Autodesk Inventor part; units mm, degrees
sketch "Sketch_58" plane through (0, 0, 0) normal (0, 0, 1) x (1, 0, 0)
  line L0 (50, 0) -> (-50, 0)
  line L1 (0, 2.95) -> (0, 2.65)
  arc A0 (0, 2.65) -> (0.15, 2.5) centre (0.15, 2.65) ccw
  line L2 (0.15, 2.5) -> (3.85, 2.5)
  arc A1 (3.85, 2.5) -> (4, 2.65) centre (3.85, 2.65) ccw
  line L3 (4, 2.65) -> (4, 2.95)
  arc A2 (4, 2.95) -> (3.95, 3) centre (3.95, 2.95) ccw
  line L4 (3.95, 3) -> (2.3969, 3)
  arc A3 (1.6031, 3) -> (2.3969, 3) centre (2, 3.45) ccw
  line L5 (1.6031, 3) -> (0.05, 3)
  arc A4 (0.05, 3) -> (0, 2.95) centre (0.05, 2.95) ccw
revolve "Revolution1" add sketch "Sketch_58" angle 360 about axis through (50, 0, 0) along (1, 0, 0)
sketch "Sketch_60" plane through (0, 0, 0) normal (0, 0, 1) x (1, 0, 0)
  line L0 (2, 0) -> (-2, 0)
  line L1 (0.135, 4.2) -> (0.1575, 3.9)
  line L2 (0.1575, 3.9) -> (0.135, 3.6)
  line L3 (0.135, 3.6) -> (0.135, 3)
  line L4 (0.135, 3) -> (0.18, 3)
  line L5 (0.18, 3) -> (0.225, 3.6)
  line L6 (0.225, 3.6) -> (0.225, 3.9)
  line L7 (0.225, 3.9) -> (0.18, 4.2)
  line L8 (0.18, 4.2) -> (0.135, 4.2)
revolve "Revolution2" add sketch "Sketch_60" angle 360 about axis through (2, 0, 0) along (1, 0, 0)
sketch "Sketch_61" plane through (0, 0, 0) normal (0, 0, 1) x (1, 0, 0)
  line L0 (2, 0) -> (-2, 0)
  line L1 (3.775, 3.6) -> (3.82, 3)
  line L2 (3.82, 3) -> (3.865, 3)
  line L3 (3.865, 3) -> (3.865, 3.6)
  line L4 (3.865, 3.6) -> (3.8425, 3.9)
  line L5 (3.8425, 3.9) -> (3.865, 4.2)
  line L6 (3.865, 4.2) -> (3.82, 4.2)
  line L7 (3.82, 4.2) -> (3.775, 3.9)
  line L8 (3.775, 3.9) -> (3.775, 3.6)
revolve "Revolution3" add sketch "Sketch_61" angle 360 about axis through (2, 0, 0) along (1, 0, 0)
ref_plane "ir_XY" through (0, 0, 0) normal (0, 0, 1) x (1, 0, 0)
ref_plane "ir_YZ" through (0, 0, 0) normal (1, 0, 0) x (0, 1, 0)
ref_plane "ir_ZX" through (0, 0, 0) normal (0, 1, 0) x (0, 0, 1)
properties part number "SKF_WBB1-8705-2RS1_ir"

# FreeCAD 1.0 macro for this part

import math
import FreeCAD as App
import Part
import Sketcher
from FreeCAD import Vector
Q = App.Units.Quantity

doc = App.newDocument("Part")
body = doc.addObject("PartDesign::Body", "Body")

# Sketch on XY plane
sketch1 = body.newObject("Sketcher::SketchObject", "Sketch")
sketch1.AttachmentSupport = (doc.getObject("XY_Plane"), [""])
sketch1.MapMode = "FlatFace"
sketch1.addGeometry([
    Part.ArcOfCircle(Part.Circle(Vector(0.05, 2.95, 0), Vector(0, 0, 1), 0.05), math.radians(90), math.radians(180)),  # 0
    Part.LineSegment(Vector(0, 2.95, 0), Vector(0, 2.65, 0)),  # 1
    Part.ArcOfCircle(Part.Circle(Vector(0.15, 2.65, 0), Vector(0, 0, 1), 0.15), math.radians(180), math.radians(270)),  # 2
    Part.LineSegment(Vector(0.15, 2.5, 0), Vector(3.85, 2.5, 0)),  # 3
    Part.ArcOfCircle(Part.Circle(Vector(3.85, 2.65, 0), Vector(0, 0, 1), 0.15), math.radians(-90), math.radians(0)),  # 4
    Part.LineSegment(Vector(4, 2.65, 0), Vector(4, 2.95, 0)),  # 5
    Part.ArcOfCircle(Part.Circle(Vector(3.95, 2.95, 0), Vector(0, 0, 1), 0.05), math.radians(0), math.radians(90)),  # 6
    Part.LineSegment(Vector(3.95, 3, 0), Vector(2.397, 3, 0)),  # 7
    Part.ArcOfCircle(Part.Circle(Vector(2, 3.45, 0), Vector(0, 0, 1), 0.6), math.radians(-131), math.radians(-49)),  # 8
    Part.LineSegment(Vector(1.603, 3, 0), Vector(0.05, 3, 0)),  # 9
], False)
sketch1.addConstraint([
    Sketcher.Constraint("Tangent", 0, 2, 1, 1),
    Sketcher.Constraint("Tangent", 1, 2, 2, 1),
    Sketcher.Constraint("Tangent", 2, 2, 3, 1),
    Sketcher.Constraint("Tangent", 3, 2, 4, 1),
    Sketcher.Constraint("Tangent", 4, 2, 5, 1),
    Sketcher.Constraint("Tangent", 5, 2, 6, 1),
    Sketcher.Constraint("Tangent", 6, 2, 7, 1),
    Sketcher.Constraint("Coincident", 7, 2, 8, 2),
    Sketcher.Constraint("Coincident", 8, 1, 9, 1),
    Sketcher.Constraint("Tangent", 9, 2, 0, 1),
    Sketcher.Constraint("Vertical", 1),
    Sketcher.Constraint("Horizontal", 3),
    Sketcher.Constraint("Vertical", 5),
    Sketcher.Constraint("Horizontal", 7),
    Sketcher.Constraint("Horizontal", 9),
    Sketcher.Constraint("Equal", 2, 4),
    Sketcher.Constraint("Equal", 0, 6),
    Sketcher.Constraint("PointOnObject", 0, 2, -2),
    Sketcher.Constraint("Horizontal", 0, 3, 6, 3),
    Sketcher.Constraint("Equal", 7, 9),
    Sketcher.Constraint("Radius", 8, 0.6),
    Sketcher.Constraint("Radius", 0, 0.05),
    Sketcher.Constraint("Radius", 2, 0.15),
    Sketcher.Constraint("DistanceX", 3, 1, 3, 2, 3.7),
    Sketcher.Constraint("DistanceY", 1, 2, 1, 1, 0.3),
    Sketcher.Constraint("DistanceY", -1, 1, 6, 2, 3.0),
    Sketcher.Constraint("DistanceY", 0, 3, 8, 3, 0.5),
])
revolution = body.newObject("PartDesign::Revolution", "Revolution")
revolution.Profile = sketch1
revolution.ReferenceAxis = (sketch1, ["H_Axis"])
revolution.Angle = 360

# Sketch on XY plane
sketch2 = body.newObject("Sketcher::SketchObject", "Sketch001")
sketch2.AttachmentSupport = (doc.getObject("XY_Plane"), [""])
sketch2.MapMode = "FlatFace"
sketch2.addGeometry([
    Part.LineSegment(Vector(0.18, 4.2, 0), Vector(0.135, 4.2, 0)),  # 0
    Part.LineSegment(Vector(0.135, 4.2, 0), Vector(0.158, 3.9, 0)),  # 1
    Part.LineSegment(Vector(0.158, 3.9, 0), Vector(0.135, 3.6, 0)),  # 2
    Part.LineSegment(Vector(0.135, 3.6, 0), Vector(0.135, 3, 0)),  # 3
    Part.LineSegment(Vector(0.135, 3, 0), Vector(0.18, 3, 0)),  # 4
    Part.LineSegment(Vector(0.18, 3, 0), Vector(0.225, 3.6, 0)),  # 5
    Part.LineSegment(Vector(0.225, 3.6, 0), Vector(0.225, 3.9, 0)),  # 6
    Part.LineSegment(Vector(0.225, 3.9, 0), Vector(0.18, 4.2, 0)),  # 7
], False)
sketch2.addConstraint([
    Sketcher.Constraint("Coincident", 0, 2, 1, 1),
    Sketcher.Constraint("Coincident", 1, 2, 2, 1),
    Sketcher.Constraint("Coincident", 2, 2, 3, 1),
    Sketcher.Constraint("Coincident", 3, 2, 4, 1),
    Sketcher.Constraint("Coincident", 4, 2, 5, 1),
    Sketcher.Constraint("Coincident", 5, 2, 6, 1),
    Sketcher.Constraint("Coincident", 6, 2, 7, 1),
    Sketcher.Constraint("Coincident", 7, 2, 0, 1),
    Sketcher.Constraint("Horizontal", 0),
    Sketcher.Constraint("Vertical", 3),
    Sketcher.Constraint("Horizontal", 4),
    Sketcher.Constraint("Vertical", 6),
    Sketcher.Constraint("Parallel", 2, 5),
    Sketcher.Constraint("Horizontal", 2, 2, 5, 2),
    Sketcher.Constraint("Horizontal", 1, 2, 6, 2),
    Sketcher.Constraint("Vertical", 0, 2, 2, 2),
    Sketcher.Constraint("Vertical", 4, 2, 7, 2),
    Sketcher.Constraint("Equal", 1, 2),
    Sketcher.Constraint("DistanceY", 3, 2, 3, 1, 0.6),
    Sketcher.Constraint("DistanceY", 6, 1, 6, 2, 0.3),
    Sketcher.Constraint("DistanceY", -1, 1, 3, 2, 3.0),
    Sketcher.Constraint("Angle", 1, Q("-85.7108 deg")),
    Sketcher.Constraint("DistanceX", 0, 2, 0, 1, 0.045),
    Sketcher.Constraint("DistanceX", -1, 1, 4, 2, 0.18),
])
revolution2 = body.newObject("PartDesign::Revolution", "Revolution001")
revolution2.Profile = sketch2
revolution2.ReferenceAxis = (sketch2, ["H_Axis"])
revolution2.Angle = 360

# Sketch on XY plane
sketch3 = body.newObject("Sketcher::SketchObject", "Sketch002")
sketch3.AttachmentSupport = (doc.getObject("XY_Plane"), [""])
sketch3.MapMode = "FlatFace"
sketch3.addGeometry([
    Part.LineSegment(Vector(3.775, 3.9, 0), Vector(3.775, 3.6, 0)),  # 0
    Part.LineSegment(Vector(3.775, 3.6, 0), Vector(3.82, 3, 0)),  # 1
    Part.LineSegment(Vector(3.82, 3, 0), Vector(3.865, 3, 0)),  # 2
    Part.LineSegment(Vector(3.865, 3, 0), Vector(3.865, 3.6, 0)),  # 3
    Part.LineSegment(Vector(3.865, 3.6, 0), Vector(3.842, 3.9, 0)),  # 4
    Part.LineSegment(Vector(3.842, 3.9, 0), Vector(3.865, 4.2, 0)),  # 5
    Part.LineSegment(Vector(3.865, 4.2, 0), Vector(3.82, 4.2, 0)),  # 6
    Part.LineSegment(Vector(3.82, 4.2, 0), Vector(3.775, 3.9, 0)),  # 7
], False)
sketch3.addConstraint([
    Sketcher.Constraint("Coincident", 0, 2, 1, 1),
    Sketcher.Constraint("Coincident", 1, 2, 2, 1),
    Sketcher.Constraint("Coincident", 2, 2, 3, 1),
    Sketcher.Constraint("Coincident", 3, 2, 4, 1),
    Sketcher.Constraint("Coincident", 4, 2, 5, 1),
    Sketcher.Constraint("Coincident", 5, 2, 6, 1),
    Sketcher.Constraint("Coincident", 6, 2, 7, 1),
    Sketcher.Constraint("Coincident", 7, 2, 0, 1),
    Sketcher.Constraint("Vertical", 0),
    Sketcher.Constraint("Horizontal", 2),
    Sketcher.Constraint("Vertical", 3),
    Sketcher.Constraint("Horizontal", 6),
    Sketcher.Constraint("Parallel", 1, 4),
    Sketcher.Constraint("Horizontal", 0, 2, 3, 2),
    Sketcher.Constraint("Horizontal", 4, 2, 7, 2),
    Sketcher.Constraint("Vertical", 3, 2, 5, 2),
    Sketcher.Constraint("Vertical", 1, 2, 6, 2),
    Sketcher.Constraint("Equal", 4, 5),
    Sketcher.Constraint("DistanceY", 0, 2, 0, 1, 0.3),
    Sketcher.Constraint("DistanceY", 3, 1, 3, 2, 0.6),
    Sketcher.Constraint("DistanceY", -1, 1, 1, 2, 3.0),
    Sketcher.Constraint("Angle", 1, Q("-85.7108 deg")),
    Sketcher.Constraint("DistanceX", 2, 1, 2, 2, 0.045),
    Sketcher.Constraint("DistanceX", -1, 1, 1, 2, 3.82),
])
revolution3 = body.newObject("PartDesign::Revolution", "Revolution002")
revolution3.Profile = sketch3
revolution3.ReferenceAxis = (sketch3, ["H_Axis"])
revolution3.Angle = 360

doc.recompute()
